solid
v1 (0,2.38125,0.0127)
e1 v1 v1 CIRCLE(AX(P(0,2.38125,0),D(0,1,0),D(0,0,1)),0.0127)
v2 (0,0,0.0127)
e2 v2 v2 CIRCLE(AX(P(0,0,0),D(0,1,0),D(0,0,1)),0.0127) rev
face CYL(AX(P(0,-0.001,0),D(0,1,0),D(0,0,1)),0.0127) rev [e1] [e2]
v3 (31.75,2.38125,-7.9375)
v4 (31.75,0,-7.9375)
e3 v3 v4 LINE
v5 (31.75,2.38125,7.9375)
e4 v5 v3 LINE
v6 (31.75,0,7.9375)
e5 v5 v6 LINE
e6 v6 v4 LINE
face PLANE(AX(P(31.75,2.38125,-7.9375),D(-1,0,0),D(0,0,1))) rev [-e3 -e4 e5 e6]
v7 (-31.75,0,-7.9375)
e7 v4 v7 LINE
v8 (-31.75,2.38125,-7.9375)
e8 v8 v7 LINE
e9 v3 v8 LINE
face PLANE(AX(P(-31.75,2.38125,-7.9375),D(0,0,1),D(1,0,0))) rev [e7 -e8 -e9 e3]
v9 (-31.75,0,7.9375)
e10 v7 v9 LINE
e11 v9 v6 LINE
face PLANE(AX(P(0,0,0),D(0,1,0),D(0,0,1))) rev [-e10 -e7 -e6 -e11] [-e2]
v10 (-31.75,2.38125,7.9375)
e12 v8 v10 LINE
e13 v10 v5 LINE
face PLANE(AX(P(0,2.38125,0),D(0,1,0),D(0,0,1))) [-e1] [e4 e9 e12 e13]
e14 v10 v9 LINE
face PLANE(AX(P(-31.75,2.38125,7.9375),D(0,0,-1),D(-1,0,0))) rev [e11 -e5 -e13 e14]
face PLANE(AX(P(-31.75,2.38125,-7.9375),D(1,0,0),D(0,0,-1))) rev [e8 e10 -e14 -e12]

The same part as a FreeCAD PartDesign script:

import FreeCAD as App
import Part
import Sketcher
Q = App.Units.Quantity


def add_polygon(sketch, points):
    """Adds a closed chain of lines whose ends are joined by coincident constraints."""
    first, n = sketch.GeometryCount, len(points)
    for a, b in zip(points, points[1:] + points[:1]):
        sketch.addGeometry(Part.LineSegment(App.Vector(*a, 0), App.Vector(*b, 0)), False)
    for i in range(n):
        sketch.addConstraint(Sketcher.Constraint("Coincident", first + i, 2, first + (i + 1) % n, 1))

doc = App.newDocument("Part")
body = doc.addObject("PartDesign::Body", "Body")

sketch1 = doc.addObject("Sketcher::SketchObject", "Sketch")
body.addObject(sketch1)
sketch1.AttachmentSupport = (doc.XZ_Plane, [""])
sketch1.MapMode = "FlatFace"
add_polygon(sketch1, [(-31.75, -7.9375), (-31.75, 7.9375), (31.75, 7.9375), (31.75, -7.9375)])
sketch1.addConstraint(Sketcher.Constraint("Vertical", 0))
sketch1.addConstraint(Sketcher.Constraint("Horizontal", 1))
sketch1.addConstraint(Sketcher.Constraint("Vertical", 2))
sketch1.addConstraint(Sketcher.Constraint("Horizontal", 3))
sketch1.addConstraint(Sketcher.Constraint("Symmetric", 0, 2, 2, 2, -1, 1))
sketch1.addConstraint(Sketcher.Constraint("DistanceX", 1, 1, 1, 2, Q("2.5 in")))
sketch1.addConstraint(Sketcher.Constraint("DistanceY", 0, 1, 0, 2, Q("0.625 in")))
pad1 = doc.addObject("PartDesign::Pad", "Pad")
body.addObject(pad1)
pad1.Profile = sketch1
pad1.Length = Q("0.09375 in")
pad1.Reversed = True

sketch2 = doc.addObject("Sketcher::SketchObject", "Sketch001")
body.addObject(sketch2)
sketch2.AttachmentSupport = (doc.XZ_Plane, [""])
sketch2.MapMode = "FlatFace"
sketch2.AttachmentOffset = App.Placement(App.Vector(0, 0, -0.09375 * 25.4), App.Rotation())
sketch2.addGeometry(Part.Circle(App.Vector(0, 0, 0), App.Vector(0, 0, 1), 0.0127), False)
sketch2.addConstraint(Sketcher.Constraint("Coincident", 0, 3, -1, 1))
sketch2.addConstraint(Sketcher.Constraint("Diameter", 0, Q("0.001 in")))
pocket1 = doc.addObject("PartDesign::Pocket", "Pocket")
body.addObject(pocket1)
pocket1.Profile = sketch2
pocket1.Type = "UpToFirst"
pocket1.Reversed = True

doc.recompute()
